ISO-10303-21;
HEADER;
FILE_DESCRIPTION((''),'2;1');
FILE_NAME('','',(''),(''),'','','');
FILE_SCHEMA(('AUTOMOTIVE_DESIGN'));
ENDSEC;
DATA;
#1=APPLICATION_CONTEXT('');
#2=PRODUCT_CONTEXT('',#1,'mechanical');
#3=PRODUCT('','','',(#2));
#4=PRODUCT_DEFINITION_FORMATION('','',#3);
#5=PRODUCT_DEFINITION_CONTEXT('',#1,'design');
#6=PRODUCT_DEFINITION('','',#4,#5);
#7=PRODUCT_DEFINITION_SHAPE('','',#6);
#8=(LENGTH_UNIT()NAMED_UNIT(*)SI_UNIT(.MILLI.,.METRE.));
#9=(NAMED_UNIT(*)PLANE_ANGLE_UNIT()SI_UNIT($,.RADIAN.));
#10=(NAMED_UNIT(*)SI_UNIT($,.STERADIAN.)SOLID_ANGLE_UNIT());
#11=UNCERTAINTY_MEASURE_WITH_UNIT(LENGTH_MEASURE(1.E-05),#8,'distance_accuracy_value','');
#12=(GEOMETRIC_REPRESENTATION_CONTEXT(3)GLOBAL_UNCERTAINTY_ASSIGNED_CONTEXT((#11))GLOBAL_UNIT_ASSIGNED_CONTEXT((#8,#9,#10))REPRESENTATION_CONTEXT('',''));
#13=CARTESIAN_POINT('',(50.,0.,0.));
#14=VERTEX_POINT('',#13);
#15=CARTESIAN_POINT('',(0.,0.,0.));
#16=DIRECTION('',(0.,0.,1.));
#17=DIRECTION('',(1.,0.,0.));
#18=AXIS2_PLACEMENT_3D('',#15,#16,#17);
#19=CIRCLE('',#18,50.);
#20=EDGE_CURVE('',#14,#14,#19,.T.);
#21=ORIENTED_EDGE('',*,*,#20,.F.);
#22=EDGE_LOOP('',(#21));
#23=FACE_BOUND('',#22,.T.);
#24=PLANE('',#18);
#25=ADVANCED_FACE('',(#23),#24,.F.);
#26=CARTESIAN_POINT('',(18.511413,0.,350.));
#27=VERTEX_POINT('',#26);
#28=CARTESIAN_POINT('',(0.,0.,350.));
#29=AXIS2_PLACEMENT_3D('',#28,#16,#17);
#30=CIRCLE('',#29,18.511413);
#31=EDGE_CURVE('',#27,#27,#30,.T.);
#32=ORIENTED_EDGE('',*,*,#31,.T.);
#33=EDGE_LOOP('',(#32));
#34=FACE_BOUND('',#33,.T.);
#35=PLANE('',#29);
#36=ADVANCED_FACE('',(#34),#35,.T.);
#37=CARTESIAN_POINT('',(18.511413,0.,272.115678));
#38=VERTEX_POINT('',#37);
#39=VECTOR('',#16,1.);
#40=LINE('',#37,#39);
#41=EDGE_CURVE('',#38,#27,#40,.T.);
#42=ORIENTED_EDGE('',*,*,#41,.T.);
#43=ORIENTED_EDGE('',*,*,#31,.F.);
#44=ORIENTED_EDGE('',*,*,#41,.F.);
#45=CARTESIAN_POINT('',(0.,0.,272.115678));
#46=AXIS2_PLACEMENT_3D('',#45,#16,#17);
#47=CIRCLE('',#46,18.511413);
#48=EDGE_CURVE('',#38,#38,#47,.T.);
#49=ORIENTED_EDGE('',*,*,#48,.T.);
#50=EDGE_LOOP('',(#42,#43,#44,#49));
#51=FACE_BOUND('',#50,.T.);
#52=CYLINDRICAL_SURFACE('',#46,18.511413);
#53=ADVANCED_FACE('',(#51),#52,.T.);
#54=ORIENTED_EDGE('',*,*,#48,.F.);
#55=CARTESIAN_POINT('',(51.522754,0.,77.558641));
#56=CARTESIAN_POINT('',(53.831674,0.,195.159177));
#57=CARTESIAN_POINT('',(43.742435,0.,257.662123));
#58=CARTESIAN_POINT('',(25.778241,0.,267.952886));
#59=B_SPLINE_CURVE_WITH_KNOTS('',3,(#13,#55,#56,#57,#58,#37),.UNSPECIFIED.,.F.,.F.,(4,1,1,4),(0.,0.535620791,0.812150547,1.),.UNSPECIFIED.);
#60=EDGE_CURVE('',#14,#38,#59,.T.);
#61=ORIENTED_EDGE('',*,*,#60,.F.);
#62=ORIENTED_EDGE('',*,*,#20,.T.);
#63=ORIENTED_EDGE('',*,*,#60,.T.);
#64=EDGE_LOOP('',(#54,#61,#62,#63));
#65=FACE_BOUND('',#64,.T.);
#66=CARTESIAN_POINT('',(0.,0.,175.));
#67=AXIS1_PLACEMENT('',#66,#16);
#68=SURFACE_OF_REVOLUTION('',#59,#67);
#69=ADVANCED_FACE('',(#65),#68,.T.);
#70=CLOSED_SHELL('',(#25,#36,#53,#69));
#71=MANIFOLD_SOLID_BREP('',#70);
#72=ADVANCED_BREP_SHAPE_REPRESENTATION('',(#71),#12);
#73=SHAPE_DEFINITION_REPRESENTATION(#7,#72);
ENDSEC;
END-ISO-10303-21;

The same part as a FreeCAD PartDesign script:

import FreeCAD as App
import Part
import Sketcher

V = App.Vector
Q = App.Units.Quantity

doc = App.newDocument("Part")
params = doc.addObject("Spreadsheet::Sheet", "Params")
for row, (alias, value) in enumerate([
    ("sketch1_height", "350 mm"),
    ("revolution_angle", "360 deg"),
], start=1):
    params.set(f"A{row}", alias)
    params.set(f"B{row}", "=" + value)
    params.setAlias(f"B{row}", alias)

body = doc.addObject("PartDesign::Body", "Body")

# Sketch on XZ plane
sketch1 = body.newObject("Sketcher::SketchObject", "Sketch")
sketch1.AttachmentSupport = (doc.getObject("XZ_Plane"), [""])
sketch1.MapMode = "FlatFace"
sketch1.addGeometry([
    Part.LineSegment(V(0, 350, 0), V(0, 0, 0)),  # 0
    Part.LineSegment(V(0, 0, 0), V(50, 0, 0)),  # 1
    Part.BSplineCurve([V(50, 0, 0), V(51.522754, 77.558641, 0), V(53.831674, 195.159177, 0), V(43.742435, 257.662123, 0), V(25.778241, 267.952886, 0), V(18.511413, 272.115678, 0)], [4, 1, 1, 4], [0, 0.535620791, 0.812150547, 1], False, 3, [1, 1, 1, 1, 1, 1], False),  # 2
    Part.LineSegment(V(18.511413, 272.115678, 0), V(18.511413, 350, 0)),  # 3
    Part.LineSegment(V(18.511413, 350, 0), V(0, 350, 0)),  # 4
], False)
sketch1.addConstraint([
    Sketcher.Constraint("Block", 2),
    Sketcher.Constraint("Coincident", 0, 2, 1, 1),
    Sketcher.Constraint("Coincident", 1, 2, 2, 1),
    Sketcher.Constraint("Coincident", 2, 2, 3, 1),
    Sketcher.Constraint("Coincident", 3, 2, 4, 1),
    Sketcher.Constraint("Coincident", 4, 2, 0, 1),
    Sketcher.Constraint("Vertical", 0),
    Sketcher.Constraint("Horizontal", 1),
    Sketcher.Constraint("Vertical", 3),
    Sketcher.Constraint("Horizontal", 4),
    Sketcher.Constraint("PointOnObject", 4, 2, -2),
    Sketcher.Constraint("DistanceY", 0, 2, 0, 1, Q("350 mm")),
])
sketch1.setExpression("Constraints[11]", "Params.sketch1_height")
revolution = body.newObject("PartDesign::Revolution", "Revolution")
revolution.Profile = sketch1
revolution.ReferenceAxis = (sketch1, ["V_Axis"])
revolution.setExpression("Angle", "Params.revolution_angle")

doc.recompute()
